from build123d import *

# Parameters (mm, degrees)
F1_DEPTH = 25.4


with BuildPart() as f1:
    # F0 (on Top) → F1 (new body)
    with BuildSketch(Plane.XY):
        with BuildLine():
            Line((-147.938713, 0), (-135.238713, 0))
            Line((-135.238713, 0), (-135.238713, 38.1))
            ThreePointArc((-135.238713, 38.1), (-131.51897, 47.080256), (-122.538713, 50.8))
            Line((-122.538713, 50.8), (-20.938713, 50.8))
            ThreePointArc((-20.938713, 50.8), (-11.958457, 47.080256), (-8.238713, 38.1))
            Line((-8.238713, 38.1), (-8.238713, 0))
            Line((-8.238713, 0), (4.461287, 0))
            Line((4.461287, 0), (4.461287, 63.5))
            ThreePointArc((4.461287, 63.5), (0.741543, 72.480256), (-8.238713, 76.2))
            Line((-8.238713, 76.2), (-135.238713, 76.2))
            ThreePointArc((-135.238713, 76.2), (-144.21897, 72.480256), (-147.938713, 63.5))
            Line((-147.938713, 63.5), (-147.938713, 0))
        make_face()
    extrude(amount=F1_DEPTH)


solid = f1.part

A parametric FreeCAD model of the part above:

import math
import FreeCAD as App
import Part
import Sketcher

V = App.Vector
Q = App.Units.Quantity

doc = App.newDocument("Part")
params = doc.addObject("Spreadsheet::Sheet", "Params")
for row, (alias, value) in enumerate([
    ("sketch1_radius", "0.4999999 in"),
    ("sketch1_width", "4 in"),
    ("sketch1_height", "1.5 in"),
    ("sketch1_height2", "2.5 in"),
    ("pad1_length", "1 in"),
], start=1):
    params.set(f"A{row}", alias)
    params.set(f"B{row}", "=" + value)
    params.setAlias(f"B{row}", alias)

body = doc.addObject("PartDesign::Body", "Body")

sketch1 = body.newObject("Sketcher::SketchObject", "Sketch")
sketch1.AttachmentSupport = (doc.getObject("XY_Plane"), [""])
sketch1.MapMode = "FlatFace"
sketch1.addGeometry([
    Part.LineSegment(V(-148, 0, 0), V(-135, 0, 0)),
    Part.LineSegment(V(-135, 0, 0), V(-135, 38, 0)),
    Part.ArcOfCircle(Part.Circle(V(-123, 38, 0), V(0, 0, 1), 13), math.radians(90), math.radians(180)),
    Part.LineSegment(V(-123, 51, 0), V(-21, 51, 0)),
    Part.ArcOfCircle(Part.Circle(V(-21, 38, 0), V(0, 0, 1), 13), math.radians(0), math.radians(90)),
    Part.LineSegment(V(-8, 38, 0), V(-8, 0, 0)),
    Part.LineSegment(V(-8, 0, 0), V(4, 0, 0)),
    Part.LineSegment(V(4, 0, 0), V(4, 64, 0)),
    Part.ArcOfCircle(Part.Circle(V(-8, 63, 0), V(0, 0, 1), 13), math.radians(0), math.radians(90)),
    Part.LineSegment(V(-8, 76, 0), V(-135, 76, 0)),
    Part.ArcOfCircle(Part.Circle(V(-135, 64, 0), V(0, 0, 1), 13), math.radians(90), math.radians(180)),
    Part.LineSegment(V(-148, 64, 0), V(-148, 0, 0)),
], False)
sketch1.addConstraint([
    Sketcher.Constraint("Coincident", 0, 2, 1, 1),
    Sketcher.Constraint("Tangent", 1, 2, 2, 2),
    Sketcher.Constraint("Tangent", 2, 1, 3, 1),
    Sketcher.Constraint("Tangent", 3, 2, 4, 2),
    Sketcher.Constraint("Tangent", 4, 1, 5, 1),
    Sketcher.Constraint("Coincident", 5, 2, 6, 1),
    Sketcher.Constraint("Coincident", 6, 2, 7, 1),
    Sketcher.Constraint("Tangent", 7, 2, 8, 1),
    Sketcher.Constraint("Tangent", 8, 2, 9, 1),
    Sketcher.Constraint("Tangent", 9, 2, 10, 1),
    Sketcher.Constraint("Tangent", 10, 2, 11, 1),
    Sketcher.Constraint("Coincident", 11, 2, 0, 1),
    Sketcher.Constraint("Horizontal", 0),
    Sketcher.Constraint("Vertical", 1),
    Sketcher.Constraint("Horizontal", 3),
    Sketcher.Constraint("Vertical", 5),
    Sketcher.Constraint("Horizontal", 6),
    Sketcher.Constraint("Vertical", 7),
    Sketcher.Constraint("Horizontal", 9),
    Sketcher.Constraint("Vertical", 11),
    Sketcher.Constraint("Equal", 2, 4),
    Sketcher.Constraint("Equal", 4, 8),
    Sketcher.Constraint("Equal", 8, 10),
    Sketcher.Constraint("PointOnObject", 0, 2, -1),
    Sketcher.Constraint("PointOnObject", 5, 2, -1),
    Sketcher.Constraint("Vertical", 10, 3, 0, 2),
    Sketcher.Constraint("Vertical", 8, 3, 4, 1),
    Sketcher.Constraint("Radius", 2, Q("0.4999999 in")),
    Sketcher.Constraint("DistanceX", 3, 1, 3, 2, Q("4 in")),
    Sketcher.Constraint("DistanceY", 1, 1, 1, 2, Q("1.5 in")),
    Sketcher.Constraint("DistanceY", 7, 1, 7, 2, Q("2.5 in")),
    Sketcher.Constraint("DistanceX", 2, 3, -1, 1, Q("122.538714 mm")),
])
sketch1.setExpression("Constraints[27]", "Params.sketch1_radius")
sketch1.setExpression("Constraints[28]", "Params.sketch1_width")
sketch1.setExpression("Constraints[29]", "Params.sketch1_height")
sketch1.setExpression("Constraints[30]", "Params.sketch1_height2")
pad1 = body.newObject("PartDesign::Pad", "Pad")
pad1.Profile = sketch1
pad1.setExpression("Length", "Params.pad1_length")

doc.recompute()
